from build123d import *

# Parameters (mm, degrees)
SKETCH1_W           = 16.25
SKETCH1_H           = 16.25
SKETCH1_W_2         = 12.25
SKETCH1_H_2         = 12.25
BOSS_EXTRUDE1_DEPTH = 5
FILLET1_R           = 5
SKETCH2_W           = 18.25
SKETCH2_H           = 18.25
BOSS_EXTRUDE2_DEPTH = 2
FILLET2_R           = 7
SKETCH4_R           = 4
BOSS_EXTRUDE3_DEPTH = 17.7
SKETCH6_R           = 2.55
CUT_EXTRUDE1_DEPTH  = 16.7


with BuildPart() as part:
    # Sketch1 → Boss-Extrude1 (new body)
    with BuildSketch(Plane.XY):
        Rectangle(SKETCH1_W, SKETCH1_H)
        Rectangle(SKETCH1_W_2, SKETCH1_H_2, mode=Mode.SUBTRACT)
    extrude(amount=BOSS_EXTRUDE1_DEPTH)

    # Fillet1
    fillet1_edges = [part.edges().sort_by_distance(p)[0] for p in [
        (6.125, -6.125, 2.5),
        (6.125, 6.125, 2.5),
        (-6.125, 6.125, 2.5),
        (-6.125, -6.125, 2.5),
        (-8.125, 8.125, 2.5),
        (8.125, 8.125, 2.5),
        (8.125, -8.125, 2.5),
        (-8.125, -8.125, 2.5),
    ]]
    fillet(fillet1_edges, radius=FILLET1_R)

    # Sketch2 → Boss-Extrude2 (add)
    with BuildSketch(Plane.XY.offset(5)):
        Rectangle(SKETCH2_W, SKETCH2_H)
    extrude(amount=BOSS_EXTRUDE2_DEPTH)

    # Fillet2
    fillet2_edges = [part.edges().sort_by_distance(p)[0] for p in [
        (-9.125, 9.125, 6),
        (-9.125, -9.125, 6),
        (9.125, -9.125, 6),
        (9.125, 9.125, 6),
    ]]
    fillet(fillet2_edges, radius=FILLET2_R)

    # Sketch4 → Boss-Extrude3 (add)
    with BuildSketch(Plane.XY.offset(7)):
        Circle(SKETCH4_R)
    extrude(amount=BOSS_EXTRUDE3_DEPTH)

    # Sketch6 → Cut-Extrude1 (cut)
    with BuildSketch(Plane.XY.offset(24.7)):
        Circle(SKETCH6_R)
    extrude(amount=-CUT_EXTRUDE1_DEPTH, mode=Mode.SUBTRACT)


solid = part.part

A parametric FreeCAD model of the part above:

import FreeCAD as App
import Part
import Sketcher


def edges_at(feature, points):
    """Names of the edges that pass closest to the given points."""
    edges = feature.Shape.Edges
    near = lambda p: min(range(len(edges)), key=lambda i: edges[i].distToShape(Part.Vertex(*p))[0])
    return sorted({f"Edge{near(p) + 1}" for p in points})

doc = App.newDocument("Part")
body = doc.addObject("PartDesign::Body", "Body")

# Sketch on XY plane
sketch1 = body.newObject("Sketcher::SketchObject", "Sketch")
sketch1.AttachmentSupport = (doc.getObject("XY_Plane"), [""])
sketch1.MapMode = "FlatFace"
sketch1.addGeometry(Part.LineSegment(App.Vector(-8, 8, 0), App.Vector(-8, -8, 0)), False)
sketch1.addGeometry(Part.LineSegment(App.Vector(-8, -8, 0), App.Vector(8, -8, 0)), False)
sketch1.addGeometry(Part.LineSegment(App.Vector(8, -8, 0), App.Vector(8, 8, 0)), False)
sketch1.addGeometry(Part.LineSegment(App.Vector(8, 8, 0), App.Vector(-8, 8, 0)), False)
sketch1.addGeometry(Part.LineSegment(App.Vector(6, -6, 0), App.Vector(-6, -6, 0)), False)
sketch1.addGeometry(Part.LineSegment(App.Vector(-6, -6, 0), App.Vector(-6, 6, 0)), False)
sketch1.addGeometry(Part.LineSegment(App.Vector(-6, 6, 0), App.Vector(6, 6, 0)), False)
sketch1.addGeometry(Part.LineSegment(App.Vector(6, 6, 0), App.Vector(6, -6, 0)), False)
sketch1.addConstraint(Sketcher.Constraint("Coincident", 0, 2, 1, 1))
sketch1.addConstraint(Sketcher.Constraint("Coincident", 1, 2, 2, 1))
sketch1.addConstraint(Sketcher.Constraint("Coincident", 2, 2, 3, 1))
sketch1.addConstraint(Sketcher.Constraint("Coincident", 3, 2, 0, 1))
sketch1.addConstraint(Sketcher.Constraint("Coincident", 4, 2, 5, 1))
sketch1.addConstraint(Sketcher.Constraint("Coincident", 5, 2, 6, 1))
sketch1.addConstraint(Sketcher.Constraint("Coincident", 6, 2, 7, 1))
sketch1.addConstraint(Sketcher.Constraint("Coincident", 7, 2, 4, 1))
sketch1.addConstraint(Sketcher.Constraint("Vertical", 0))
sketch1.addConstraint(Sketcher.Constraint("Horizontal", 1))
sketch1.addConstraint(Sketcher.Constraint("Vertical", 2))
sketch1.addConstraint(Sketcher.Constraint("Horizontal", 3))
sketch1.addConstraint(Sketcher.Constraint("Horizontal", 4))
sketch1.addConstraint(Sketcher.Constraint("Vertical", 5))
sketch1.addConstraint(Sketcher.Constraint("Horizontal", 6))
sketch1.addConstraint(Sketcher.Constraint("Vertical", 7))
sketch1.addConstraint(Sketcher.Constraint("Symmetric", 0, 2, 2, 2, -1, 1))
sketch1.addConstraint(Sketcher.Constraint("Symmetric", 4, 2, 6, 2, -1, 1))
sketch1.addConstraint(Sketcher.Constraint("Equal", 3, 0))
sketch1.addConstraint(Sketcher.Constraint("Equal", 6, 5))
sketch1.addConstraint(Sketcher.Constraint("DistanceX", 0, 2, 4, 2, 2.0))
sketch1.addConstraint(Sketcher.Constraint("DistanceX", 1, 1, 1, 2, 16.25))
pad1 = body.newObject("PartDesign::Pad", "Pad")
pad1.Profile = sketch1
pad1.Length = 5
doc.recompute()

fillet = body.newObject("PartDesign::Fillet", "Fillet")
fillet.Base = (pad1, edges_at(pad1, [
    (6.125, -6.125, 2.5),
    (6.125, 6.125, 2.5),
    (-6.125, 6.125, 2.5),
    (-6.125, -6.125, 2.5),
    (-8.125, 8.125, 2.5),
    (8.125, 8.125, 2.5),
    (8.125, -8.125, 2.5),
    (-8.125, -8.125, 2.5),
]))
fillet.Radius = 5

# Sketch on XY plane
sketch2 = body.newObject("Sketcher::SketchObject", "Sketch001")
sketch2.AttachmentSupport = (doc.getObject("XY_Plane"), [""])
sketch2.MapMode = "FlatFace"
sketch2.AttachmentOffset = App.Placement(App.Vector(0, 0, 5), App.Rotation())
sketch2.addGeometry(Part.LineSegment(App.Vector(-9, 9, 0), App.Vector(-9, -9, 0)), False)
sketch2.addGeometry(Part.LineSegment(App.Vector(-9, -9, 0), App.Vector(9, -9, 0)), False)
sketch2.addGeometry(Part.LineSegment(App.Vector(9, -9, 0), App.Vector(9, 9, 0)), False)
sketch2.addGeometry(Part.LineSegment(App.Vector(9, 9, 0), App.Vector(-9, 9, 0)), False)
sketch2.addConstraint(Sketcher.Constraint("Coincident", 0, 2, 1, 1))
sketch2.addConstraint(Sketcher.Constraint("Coincident", 1, 2, 2, 1))
sketch2.addConstraint(Sketcher.Constraint("Coincident", 2, 2, 3, 1))
sketch2.addConstraint(Sketcher.Constraint("Coincident", 3, 2, 0, 1))
sketch2.addConstraint(Sketcher.Constraint("Vertical", 0))
sketch2.addConstraint(Sketcher.Constraint("Horizontal", 1))
sketch2.addConstraint(Sketcher.Constraint("Vertical", 2))
sketch2.addConstraint(Sketcher.Constraint("Horizontal", 3))
sketch2.addConstraint(Sketcher.Constraint("Symmetric", 0, 2, 2, 2, -1, 1))
sketch2.addConstraint(Sketcher.Constraint("Equal", 3, 0))
sketch2.addConstraint(Sketcher.Constraint("DistanceX", 1, 1, 1, 2, 18.25))
pad2 = body.newObject("PartDesign::Pad", "Pad001")
pad2.Profile = sketch2
pad2.Length = 2
doc.recompute()

fillet2 = body.newObject("PartDesign::Fillet", "Fillet001")
fillet2.Base = (pad2, edges_at(pad2, [
    (-9.125, 9.125, 6),
    (-9.125, -9.125, 6),
    (9.125, -9.125, 6),
    (9.125, 9.125, 6),
]))
fillet2.Radius = 7

# Sketch on XY plane
sketch3 = body.newObject("Sketcher::SketchObject", "Sketch002")
sketch3.AttachmentSupport = (doc.getObject("XY_Plane"), [""])
sketch3.MapMode = "FlatFace"
sketch3.AttachmentOffset = App.Placement(App.Vector(0, 0, 7), App.Rotation())
sketch3.addGeometry(Part.Circle(App.Vector(0, 0, 0), App.Vector(0, 0, 1), 4), False)
sketch3.addConstraint(Sketcher.Constraint("Coincident", 0, 3, -1, 1))
sketch3.addConstraint(Sketcher.Constraint("Diameter", 0, 8.0))
pad3 = body.newObject("PartDesign::Pad", "Pad002")
pad3.Profile = sketch3
pad3.Length = 17.7

# Sketch on XY plane
sketch4 = body.newObject("Sketcher::SketchObject", "Sketch003")
sketch4.AttachmentSupport = (doc.getObject("XY_Plane"), [""])
sketch4.MapMode = "FlatFace"
sketch4.AttachmentOffset = App.Placement(App.Vector(0, 0, 24.7), App.Rotation())
sketch4.addGeometry(Part.Circle(App.Vector(0, 0, 0), App.Vector(0, 0, 1), 2.5), False)
sketch4.addConstraint(Sketcher.Constraint("Coincident", 0, 3, -1, 1))
sketch4.addConstraint(Sketcher.Constraint("Diameter", 0, 5.1))
pocket1 = body.newObject("PartDesign::Pocket", "Pocket")
pocket1.Profile = sketch4
pocket1.Length = 16.7

doc.recompute()
